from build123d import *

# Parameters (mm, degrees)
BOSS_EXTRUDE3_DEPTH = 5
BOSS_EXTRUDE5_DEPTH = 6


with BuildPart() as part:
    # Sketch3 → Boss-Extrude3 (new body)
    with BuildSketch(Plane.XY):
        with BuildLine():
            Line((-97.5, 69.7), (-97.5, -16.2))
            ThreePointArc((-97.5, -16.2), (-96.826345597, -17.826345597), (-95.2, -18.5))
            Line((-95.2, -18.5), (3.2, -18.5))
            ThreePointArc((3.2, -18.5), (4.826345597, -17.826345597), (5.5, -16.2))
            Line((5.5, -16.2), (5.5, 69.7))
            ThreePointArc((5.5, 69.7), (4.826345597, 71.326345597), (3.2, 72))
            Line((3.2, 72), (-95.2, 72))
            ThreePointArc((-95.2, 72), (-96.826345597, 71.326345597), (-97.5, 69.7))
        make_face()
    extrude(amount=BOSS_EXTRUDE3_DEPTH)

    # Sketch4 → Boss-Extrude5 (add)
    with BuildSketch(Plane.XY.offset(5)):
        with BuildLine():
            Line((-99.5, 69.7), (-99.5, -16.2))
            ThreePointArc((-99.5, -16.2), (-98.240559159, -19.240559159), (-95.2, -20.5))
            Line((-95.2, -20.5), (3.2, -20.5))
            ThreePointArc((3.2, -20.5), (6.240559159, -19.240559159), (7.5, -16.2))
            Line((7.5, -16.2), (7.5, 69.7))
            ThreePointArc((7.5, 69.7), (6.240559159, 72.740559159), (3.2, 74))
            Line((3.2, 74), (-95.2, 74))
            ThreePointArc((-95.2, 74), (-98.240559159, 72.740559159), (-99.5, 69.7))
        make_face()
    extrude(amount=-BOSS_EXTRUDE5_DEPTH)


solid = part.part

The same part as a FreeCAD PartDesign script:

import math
import FreeCAD as App
import Part
import Sketcher

doc = App.newDocument("Part")
body = doc.addObject("PartDesign::Body", "Body")

sketch1 = body.newObject("Sketcher::SketchObject", "Sketch")
sketch1.AttachmentSupport = (doc.getObject("XY_Plane"), [""])
sketch1.MapMode = "FlatFace"
sketch1.addGeometry([
    Part.LineSegment(App.Vector(-97.5, 69.7, 0), App.Vector(-97.5, -16.2, 0)),
    Part.ArcOfCircle(Part.Circle(App.Vector(-95.2, -16.2, 0), App.Vector(0, 0, 1), 2.3), math.radians(180), math.radians(270)),
    Part.LineSegment(App.Vector(-95.2, -18.5, 0), App.Vector(3.2, -18.5, 0)),
    Part.ArcOfCircle(Part.Circle(App.Vector(3.2, -16.2, 0), App.Vector(0, 0, 1), 2.3), math.radians(-90), math.radians(0)),
    Part.LineSegment(App.Vector(5.5, -16.2, 0), App.Vector(5.5, 69.7, 0)),
    Part.ArcOfCircle(Part.Circle(App.Vector(3.2, 69.7, 0), App.Vector(0, 0, 1), 2.3), math.radians(0), math.radians(90)),
    Part.LineSegment(App.Vector(3.2, 72, 0), App.Vector(-95.2, 72, 0)),
    Part.ArcOfCircle(Part.Circle(App.Vector(-95.2, 69.7, 0), App.Vector(0, 0, 1), 2.3), math.radians(90), math.radians(180)),
], False)
sketch1.addConstraint([
    Sketcher.Constraint("Tangent", 0, 2, 1, 1),
    Sketcher.Constraint("Tangent", 1, 2, 2, 1),
    Sketcher.Constraint("Tangent", 2, 2, 3, 1),
    Sketcher.Constraint("Tangent", 3, 2, 4, 1),
    Sketcher.Constraint("Tangent", 4, 2, 5, 1),
    Sketcher.Constraint("Tangent", 5, 2, 6, 1),
    Sketcher.Constraint("Tangent", 6, 2, 7, 1),
    Sketcher.Constraint("Tangent", 7, 2, 0, 1),
    Sketcher.Constraint("Vertical", 0),
    Sketcher.Constraint("Horizontal", 2),
    Sketcher.Constraint("Vertical", 4),
    Sketcher.Constraint("Horizontal", 6),
    Sketcher.Constraint("Equal", 1, 3),
    Sketcher.Constraint("Equal", 3, 5),
    Sketcher.Constraint("Equal", 5, 7),
    Sketcher.Constraint("Radius", 1, 2.3),
    Sketcher.Constraint("DistanceX", 2, 1, 2, 2, 98.4),
    Sketcher.Constraint("DistanceY", 0, 2, 0, 1, 85.9),
    Sketcher.Constraint("DistanceY", -1, 1, 5, 2, 72.0),
    Sketcher.Constraint("DistanceX", 1, 3, -1, 1, 95.2),
])
pad1 = body.newObject("PartDesign::Pad", "Pad")
pad1.Profile = sketch1
pad1.Length = 5

sketch2 = body.newObject("Sketcher::SketchObject", "Sketch001")
sketch2.AttachmentSupport = (doc.getObject("XY_Plane"), [""])
sketch2.MapMode = "FlatFace"
sketch2.AttachmentOffset = App.Placement(App.Vector(0, 0, 5), App.Rotation())
sketch2.addGeometry([
    Part.LineSegment(App.Vector(-99.5, 69.7, 0), App.Vector(-99.5, -16.2, 0)),
    Part.ArcOfCircle(Part.Circle(App.Vector(-95.2, -16.2, 0), App.Vector(0, 0, 1), 4.3), math.radians(180), math.radians(270)),
    Part.LineSegment(App.Vector(-95.2, -20.5, 0), App.Vector(3.2, -20.5, 0)),
    Part.ArcOfCircle(Part.Circle(App.Vector(3.2, -16.2, 0), App.Vector(0, 0, 1), 4.3), math.radians(-90), math.radians(0)),
    Part.LineSegment(App.Vector(7.5, -16.2, 0), App.Vector(7.5, 69.7, 0)),
    Part.ArcOfCircle(Part.Circle(App.Vector(3.2, 69.7, 0), App.Vector(0, 0, 1), 4.3), math.radians(0), math.radians(90)),
    Part.LineSegment(App.Vector(3.2, 74, 0), App.Vector(-95.2, 74, 0)),
    Part.ArcOfCircle(Part.Circle(App.Vector(-95.2, 69.7, 0), App.Vector(0, 0, 1), 4.3), math.radians(90), math.radians(180)),
], False)
sketch2.addConstraint([
    Sketcher.Constraint("Tangent", 0, 2, 1, 1),
    Sketcher.Constraint("Tangent", 1, 2, 2, 1),
    Sketcher.Constraint("Tangent", 2, 2, 3, 1),
    Sketcher.Constraint("Tangent", 3, 2, 4, 1),
    Sketcher.Constraint("Tangent", 4, 2, 5, 1),
    Sketcher.Constraint("Tangent", 5, 2, 6, 1),
    Sketcher.Constraint("Tangent", 6, 2, 7, 1),
    Sketcher.Constraint("Tangent", 7, 2, 0, 1),
    Sketcher.Constraint("Vertical", 0),
    Sketcher.Constraint("Horizontal", 2),
    Sketcher.Constraint("Vertical", 4),
    Sketcher.Constraint("Horizontal", 6),
    Sketcher.Constraint("Equal", 1, 3),
    Sketcher.Constraint("Equal", 3, 5),
    Sketcher.Constraint("Equal", 5, 7),
    Sketcher.Constraint("Radius", 1, 4.3),
    Sketcher.Constraint("DistanceX", 2, 1, 2, 2, 98.4),
    Sketcher.Constraint("DistanceY", 0, 2, 0, 1, 85.9),
    Sketcher.Constraint("DistanceY", -1, 1, 5, 2, 74.0),
    Sketcher.Constraint("DistanceX", 1, 3, -1, 1, 95.2),
])
pad2 = body.newObject("PartDesign::Pad", "Pad001")
pad2.Profile = sketch2
pad2.Length = 6
pad2.Reversed = True

doc.recompute()
